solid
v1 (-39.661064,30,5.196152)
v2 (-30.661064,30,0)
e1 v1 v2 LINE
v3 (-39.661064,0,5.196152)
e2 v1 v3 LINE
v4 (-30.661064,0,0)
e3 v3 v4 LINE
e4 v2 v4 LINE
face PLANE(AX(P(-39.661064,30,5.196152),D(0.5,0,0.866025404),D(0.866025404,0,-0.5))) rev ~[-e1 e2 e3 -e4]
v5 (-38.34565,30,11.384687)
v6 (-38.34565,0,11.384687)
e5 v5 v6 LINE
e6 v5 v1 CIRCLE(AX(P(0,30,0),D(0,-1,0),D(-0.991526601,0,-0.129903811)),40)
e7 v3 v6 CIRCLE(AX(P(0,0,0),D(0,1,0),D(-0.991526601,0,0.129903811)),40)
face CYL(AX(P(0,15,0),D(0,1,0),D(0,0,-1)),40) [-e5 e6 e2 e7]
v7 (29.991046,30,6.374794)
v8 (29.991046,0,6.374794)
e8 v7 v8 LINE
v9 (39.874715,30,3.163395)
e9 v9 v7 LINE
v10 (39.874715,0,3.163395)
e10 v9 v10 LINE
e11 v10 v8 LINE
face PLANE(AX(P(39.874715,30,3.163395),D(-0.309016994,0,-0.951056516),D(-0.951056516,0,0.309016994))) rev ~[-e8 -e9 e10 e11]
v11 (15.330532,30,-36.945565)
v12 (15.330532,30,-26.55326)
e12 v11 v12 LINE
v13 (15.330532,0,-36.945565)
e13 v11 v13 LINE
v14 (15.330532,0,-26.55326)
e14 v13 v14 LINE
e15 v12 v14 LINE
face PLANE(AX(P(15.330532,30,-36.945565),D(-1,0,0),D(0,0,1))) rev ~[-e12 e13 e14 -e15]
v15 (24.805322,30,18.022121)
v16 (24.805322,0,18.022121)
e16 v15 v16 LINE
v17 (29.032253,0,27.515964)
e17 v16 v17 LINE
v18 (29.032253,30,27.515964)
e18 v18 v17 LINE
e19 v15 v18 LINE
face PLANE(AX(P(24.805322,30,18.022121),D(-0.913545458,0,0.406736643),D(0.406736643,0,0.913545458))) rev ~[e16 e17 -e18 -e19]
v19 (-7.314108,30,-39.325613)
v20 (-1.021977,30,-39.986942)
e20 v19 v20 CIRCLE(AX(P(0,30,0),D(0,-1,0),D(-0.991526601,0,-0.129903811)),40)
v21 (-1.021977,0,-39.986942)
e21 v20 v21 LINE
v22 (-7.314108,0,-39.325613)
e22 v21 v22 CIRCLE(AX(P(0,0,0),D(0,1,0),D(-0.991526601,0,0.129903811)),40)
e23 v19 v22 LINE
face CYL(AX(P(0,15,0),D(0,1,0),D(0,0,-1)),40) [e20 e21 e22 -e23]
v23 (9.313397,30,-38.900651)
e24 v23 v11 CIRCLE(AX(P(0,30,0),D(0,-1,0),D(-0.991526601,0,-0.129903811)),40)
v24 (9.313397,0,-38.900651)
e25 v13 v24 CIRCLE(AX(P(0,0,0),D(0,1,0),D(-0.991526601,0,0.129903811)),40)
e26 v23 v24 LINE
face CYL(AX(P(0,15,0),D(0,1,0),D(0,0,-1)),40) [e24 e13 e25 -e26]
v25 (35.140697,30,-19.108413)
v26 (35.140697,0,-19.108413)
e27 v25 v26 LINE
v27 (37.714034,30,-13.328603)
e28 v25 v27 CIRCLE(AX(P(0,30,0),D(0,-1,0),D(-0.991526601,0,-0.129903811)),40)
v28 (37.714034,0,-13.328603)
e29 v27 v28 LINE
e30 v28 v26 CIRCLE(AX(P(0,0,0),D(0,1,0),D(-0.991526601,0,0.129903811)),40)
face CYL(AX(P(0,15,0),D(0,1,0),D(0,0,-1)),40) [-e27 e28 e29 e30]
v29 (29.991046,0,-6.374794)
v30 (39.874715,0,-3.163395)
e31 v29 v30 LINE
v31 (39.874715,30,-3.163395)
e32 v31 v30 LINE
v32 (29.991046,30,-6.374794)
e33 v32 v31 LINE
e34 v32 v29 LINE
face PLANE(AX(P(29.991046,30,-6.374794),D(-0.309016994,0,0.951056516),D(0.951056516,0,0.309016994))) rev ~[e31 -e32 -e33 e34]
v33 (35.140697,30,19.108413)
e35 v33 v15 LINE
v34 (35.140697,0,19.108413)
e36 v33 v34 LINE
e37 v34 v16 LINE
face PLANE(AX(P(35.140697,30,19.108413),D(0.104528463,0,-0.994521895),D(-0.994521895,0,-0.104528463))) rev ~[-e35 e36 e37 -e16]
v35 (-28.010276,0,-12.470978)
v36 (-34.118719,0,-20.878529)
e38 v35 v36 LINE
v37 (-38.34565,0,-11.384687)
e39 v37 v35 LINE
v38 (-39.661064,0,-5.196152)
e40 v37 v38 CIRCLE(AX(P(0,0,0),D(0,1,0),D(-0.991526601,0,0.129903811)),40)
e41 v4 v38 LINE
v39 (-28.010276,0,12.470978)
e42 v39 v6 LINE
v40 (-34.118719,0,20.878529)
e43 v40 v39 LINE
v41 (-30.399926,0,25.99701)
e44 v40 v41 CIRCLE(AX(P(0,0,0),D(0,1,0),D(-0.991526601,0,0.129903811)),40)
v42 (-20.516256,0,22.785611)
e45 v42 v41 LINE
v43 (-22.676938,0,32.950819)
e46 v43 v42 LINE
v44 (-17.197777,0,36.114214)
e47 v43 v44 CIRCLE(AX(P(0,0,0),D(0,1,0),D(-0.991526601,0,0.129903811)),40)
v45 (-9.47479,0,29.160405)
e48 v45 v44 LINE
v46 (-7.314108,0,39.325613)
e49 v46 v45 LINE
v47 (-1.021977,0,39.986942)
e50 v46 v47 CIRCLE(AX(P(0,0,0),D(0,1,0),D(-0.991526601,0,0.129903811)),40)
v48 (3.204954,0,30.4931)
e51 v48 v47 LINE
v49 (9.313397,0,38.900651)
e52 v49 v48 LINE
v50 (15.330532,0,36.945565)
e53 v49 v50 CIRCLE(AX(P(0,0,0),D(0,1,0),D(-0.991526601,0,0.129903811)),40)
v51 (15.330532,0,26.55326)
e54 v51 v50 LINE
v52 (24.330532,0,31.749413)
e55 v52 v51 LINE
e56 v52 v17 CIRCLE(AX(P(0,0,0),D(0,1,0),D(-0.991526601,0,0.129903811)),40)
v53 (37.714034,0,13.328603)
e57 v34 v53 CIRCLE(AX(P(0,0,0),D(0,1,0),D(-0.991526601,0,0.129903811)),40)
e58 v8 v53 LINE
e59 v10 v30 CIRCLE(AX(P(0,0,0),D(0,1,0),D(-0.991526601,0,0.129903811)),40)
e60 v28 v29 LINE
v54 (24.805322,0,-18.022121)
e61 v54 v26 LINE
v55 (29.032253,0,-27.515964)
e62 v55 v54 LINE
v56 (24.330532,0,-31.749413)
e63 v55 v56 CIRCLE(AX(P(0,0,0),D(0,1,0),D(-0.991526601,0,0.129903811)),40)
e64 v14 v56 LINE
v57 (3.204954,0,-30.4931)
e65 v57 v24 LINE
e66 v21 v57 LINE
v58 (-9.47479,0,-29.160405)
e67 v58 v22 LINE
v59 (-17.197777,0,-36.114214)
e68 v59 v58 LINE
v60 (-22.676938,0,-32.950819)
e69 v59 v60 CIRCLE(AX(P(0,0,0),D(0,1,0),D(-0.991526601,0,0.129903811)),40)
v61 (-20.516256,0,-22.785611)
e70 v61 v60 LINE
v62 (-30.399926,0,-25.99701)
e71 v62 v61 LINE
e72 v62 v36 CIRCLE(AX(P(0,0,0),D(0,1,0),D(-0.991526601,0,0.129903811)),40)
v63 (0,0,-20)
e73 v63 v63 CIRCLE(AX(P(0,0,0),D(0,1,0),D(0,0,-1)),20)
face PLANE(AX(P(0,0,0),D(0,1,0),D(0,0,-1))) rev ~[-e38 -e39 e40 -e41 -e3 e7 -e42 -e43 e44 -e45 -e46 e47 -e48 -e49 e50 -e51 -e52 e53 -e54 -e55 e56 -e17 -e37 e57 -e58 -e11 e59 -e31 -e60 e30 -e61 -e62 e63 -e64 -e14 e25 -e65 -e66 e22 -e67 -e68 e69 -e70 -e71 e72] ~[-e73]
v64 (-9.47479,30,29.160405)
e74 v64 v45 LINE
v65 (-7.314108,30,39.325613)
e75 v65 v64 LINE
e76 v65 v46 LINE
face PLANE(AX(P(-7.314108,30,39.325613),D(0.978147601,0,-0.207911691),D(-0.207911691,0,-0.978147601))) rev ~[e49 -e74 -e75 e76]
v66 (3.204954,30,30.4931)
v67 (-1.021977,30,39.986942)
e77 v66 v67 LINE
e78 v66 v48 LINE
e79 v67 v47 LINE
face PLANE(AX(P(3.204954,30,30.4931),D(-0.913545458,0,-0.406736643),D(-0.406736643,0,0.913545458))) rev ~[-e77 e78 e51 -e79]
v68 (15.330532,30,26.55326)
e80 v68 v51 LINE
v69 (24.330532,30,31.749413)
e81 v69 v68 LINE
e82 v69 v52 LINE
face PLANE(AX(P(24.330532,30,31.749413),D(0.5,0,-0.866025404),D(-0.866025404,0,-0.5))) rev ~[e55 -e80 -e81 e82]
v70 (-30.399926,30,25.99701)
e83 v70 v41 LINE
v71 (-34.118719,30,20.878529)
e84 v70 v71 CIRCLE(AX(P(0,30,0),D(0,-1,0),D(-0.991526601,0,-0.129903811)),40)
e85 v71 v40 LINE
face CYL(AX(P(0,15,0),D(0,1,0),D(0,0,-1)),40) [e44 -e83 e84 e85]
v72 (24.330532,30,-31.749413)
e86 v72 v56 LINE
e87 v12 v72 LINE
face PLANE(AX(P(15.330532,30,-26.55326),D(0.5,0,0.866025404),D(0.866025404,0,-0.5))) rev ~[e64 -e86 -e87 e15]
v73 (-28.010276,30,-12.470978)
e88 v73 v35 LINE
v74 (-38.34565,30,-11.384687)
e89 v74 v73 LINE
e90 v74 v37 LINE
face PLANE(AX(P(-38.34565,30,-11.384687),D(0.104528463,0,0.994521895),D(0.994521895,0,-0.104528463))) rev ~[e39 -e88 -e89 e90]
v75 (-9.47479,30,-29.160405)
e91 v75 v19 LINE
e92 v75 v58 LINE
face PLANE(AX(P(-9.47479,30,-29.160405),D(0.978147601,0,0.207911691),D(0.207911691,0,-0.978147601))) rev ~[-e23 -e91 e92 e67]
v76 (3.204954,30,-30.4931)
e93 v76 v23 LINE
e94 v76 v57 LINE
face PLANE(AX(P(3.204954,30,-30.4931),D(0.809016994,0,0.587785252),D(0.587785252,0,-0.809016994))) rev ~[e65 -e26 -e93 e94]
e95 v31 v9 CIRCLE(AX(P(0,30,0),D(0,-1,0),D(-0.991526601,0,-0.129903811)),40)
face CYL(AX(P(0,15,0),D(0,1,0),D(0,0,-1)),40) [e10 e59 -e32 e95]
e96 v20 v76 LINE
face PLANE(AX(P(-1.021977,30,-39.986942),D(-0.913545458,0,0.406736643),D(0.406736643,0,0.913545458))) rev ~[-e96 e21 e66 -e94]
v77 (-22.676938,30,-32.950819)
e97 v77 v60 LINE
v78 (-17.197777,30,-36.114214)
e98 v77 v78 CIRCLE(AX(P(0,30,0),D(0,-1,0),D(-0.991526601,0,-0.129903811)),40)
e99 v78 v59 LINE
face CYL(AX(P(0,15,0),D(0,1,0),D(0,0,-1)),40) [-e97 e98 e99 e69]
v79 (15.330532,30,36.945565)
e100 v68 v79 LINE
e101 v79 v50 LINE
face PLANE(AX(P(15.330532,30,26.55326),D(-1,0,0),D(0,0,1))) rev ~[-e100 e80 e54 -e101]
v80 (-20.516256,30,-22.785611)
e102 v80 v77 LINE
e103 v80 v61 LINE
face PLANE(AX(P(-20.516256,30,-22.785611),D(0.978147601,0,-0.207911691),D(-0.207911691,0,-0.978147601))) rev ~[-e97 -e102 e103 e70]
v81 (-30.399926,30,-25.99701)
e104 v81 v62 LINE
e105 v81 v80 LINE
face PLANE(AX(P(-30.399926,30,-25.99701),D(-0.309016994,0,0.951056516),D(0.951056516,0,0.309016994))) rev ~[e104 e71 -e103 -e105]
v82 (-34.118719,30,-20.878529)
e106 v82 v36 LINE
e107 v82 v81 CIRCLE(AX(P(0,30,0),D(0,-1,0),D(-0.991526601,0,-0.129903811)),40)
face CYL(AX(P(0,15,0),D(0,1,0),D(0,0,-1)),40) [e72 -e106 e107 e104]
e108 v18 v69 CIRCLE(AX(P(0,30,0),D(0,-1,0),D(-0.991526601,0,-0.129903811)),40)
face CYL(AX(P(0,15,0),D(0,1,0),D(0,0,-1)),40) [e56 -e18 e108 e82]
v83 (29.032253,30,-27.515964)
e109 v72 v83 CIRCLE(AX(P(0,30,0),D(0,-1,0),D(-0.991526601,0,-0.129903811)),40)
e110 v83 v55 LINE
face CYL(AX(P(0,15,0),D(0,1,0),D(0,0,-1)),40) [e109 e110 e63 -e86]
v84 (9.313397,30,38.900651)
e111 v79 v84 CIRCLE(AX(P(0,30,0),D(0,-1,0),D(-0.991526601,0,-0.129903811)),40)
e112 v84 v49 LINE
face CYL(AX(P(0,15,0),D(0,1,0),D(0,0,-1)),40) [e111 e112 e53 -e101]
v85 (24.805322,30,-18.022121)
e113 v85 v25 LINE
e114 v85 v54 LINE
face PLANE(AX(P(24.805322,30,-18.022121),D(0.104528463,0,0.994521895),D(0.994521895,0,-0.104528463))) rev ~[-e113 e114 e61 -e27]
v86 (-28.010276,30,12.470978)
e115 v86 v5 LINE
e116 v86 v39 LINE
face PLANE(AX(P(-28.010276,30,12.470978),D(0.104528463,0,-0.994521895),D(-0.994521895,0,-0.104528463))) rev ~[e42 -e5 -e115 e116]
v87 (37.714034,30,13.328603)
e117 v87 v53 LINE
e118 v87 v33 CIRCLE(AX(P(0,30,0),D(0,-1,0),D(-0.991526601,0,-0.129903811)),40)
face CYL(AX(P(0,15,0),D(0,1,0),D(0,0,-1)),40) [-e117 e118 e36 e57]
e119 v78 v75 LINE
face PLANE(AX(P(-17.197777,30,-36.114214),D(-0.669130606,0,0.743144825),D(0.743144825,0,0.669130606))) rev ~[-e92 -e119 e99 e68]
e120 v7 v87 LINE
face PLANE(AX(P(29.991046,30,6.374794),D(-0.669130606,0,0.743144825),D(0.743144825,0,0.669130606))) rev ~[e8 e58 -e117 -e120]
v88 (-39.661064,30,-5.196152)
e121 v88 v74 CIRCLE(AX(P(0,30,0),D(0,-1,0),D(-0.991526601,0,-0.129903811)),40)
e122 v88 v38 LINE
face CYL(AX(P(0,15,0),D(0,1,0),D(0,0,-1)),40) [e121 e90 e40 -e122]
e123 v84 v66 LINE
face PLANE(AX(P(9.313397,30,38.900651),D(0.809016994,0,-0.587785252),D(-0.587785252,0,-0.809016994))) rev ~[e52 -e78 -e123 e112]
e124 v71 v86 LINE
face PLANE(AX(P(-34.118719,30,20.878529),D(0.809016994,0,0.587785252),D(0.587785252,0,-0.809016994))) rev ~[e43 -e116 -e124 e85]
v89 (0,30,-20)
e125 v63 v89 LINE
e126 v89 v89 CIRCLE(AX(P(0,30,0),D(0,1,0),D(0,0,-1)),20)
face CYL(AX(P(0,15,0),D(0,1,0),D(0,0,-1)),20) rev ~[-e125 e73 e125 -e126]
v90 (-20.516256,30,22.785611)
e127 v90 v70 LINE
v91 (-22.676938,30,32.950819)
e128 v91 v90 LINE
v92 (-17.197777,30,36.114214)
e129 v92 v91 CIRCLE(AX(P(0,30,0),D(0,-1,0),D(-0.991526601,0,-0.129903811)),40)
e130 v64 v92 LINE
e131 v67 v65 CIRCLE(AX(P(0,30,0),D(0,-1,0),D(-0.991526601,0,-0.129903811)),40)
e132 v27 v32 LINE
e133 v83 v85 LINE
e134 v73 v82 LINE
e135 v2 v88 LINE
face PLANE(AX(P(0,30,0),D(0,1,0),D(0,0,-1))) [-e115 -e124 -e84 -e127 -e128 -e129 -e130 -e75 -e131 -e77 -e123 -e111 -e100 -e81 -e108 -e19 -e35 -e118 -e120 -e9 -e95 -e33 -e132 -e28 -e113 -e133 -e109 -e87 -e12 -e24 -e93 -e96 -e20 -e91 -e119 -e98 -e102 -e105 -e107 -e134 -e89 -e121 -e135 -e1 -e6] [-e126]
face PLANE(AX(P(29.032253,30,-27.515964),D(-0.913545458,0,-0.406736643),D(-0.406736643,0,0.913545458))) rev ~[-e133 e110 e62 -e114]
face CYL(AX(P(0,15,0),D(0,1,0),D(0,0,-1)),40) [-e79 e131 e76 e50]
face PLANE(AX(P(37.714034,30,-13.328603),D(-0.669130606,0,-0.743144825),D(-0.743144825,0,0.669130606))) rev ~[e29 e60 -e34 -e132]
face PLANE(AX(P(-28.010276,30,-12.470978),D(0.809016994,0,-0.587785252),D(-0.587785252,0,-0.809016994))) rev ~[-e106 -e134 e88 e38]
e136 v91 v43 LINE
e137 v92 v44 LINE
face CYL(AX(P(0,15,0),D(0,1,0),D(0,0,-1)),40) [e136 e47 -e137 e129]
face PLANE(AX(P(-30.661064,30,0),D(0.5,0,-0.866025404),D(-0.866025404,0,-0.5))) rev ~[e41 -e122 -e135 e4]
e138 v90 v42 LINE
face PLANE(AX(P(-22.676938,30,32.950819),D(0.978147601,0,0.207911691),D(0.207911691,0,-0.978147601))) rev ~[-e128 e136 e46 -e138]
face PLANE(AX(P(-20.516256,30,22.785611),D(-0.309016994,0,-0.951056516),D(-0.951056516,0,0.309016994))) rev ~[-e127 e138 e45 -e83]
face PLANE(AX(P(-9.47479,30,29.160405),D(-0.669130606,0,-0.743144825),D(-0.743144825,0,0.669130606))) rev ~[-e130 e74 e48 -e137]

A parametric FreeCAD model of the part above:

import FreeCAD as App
import Part
import Sketcher

V = App.Vector
Q = App.Units.Quantity


def add_polygon(sketch, points):
    """Adds a closed chain of lines whose ends are joined by coincident constraints."""
    first, n = sketch.GeometryCount, len(points)
    for a, b in zip(points, points[1:] + points[:1]):
        sketch.addGeometry(Part.LineSegment(App.Vector(*a, 0), App.Vector(*b, 0)), False)
    for i in range(n):
        sketch.addConstraint(Sketcher.Constraint("Coincident", first + i, 2, first + (i + 1) % n, 1))

doc = App.newDocument("Part")
body = doc.addObject("PartDesign::Body", "Body")

sketch1 = body.newObject("Sketcher::SketchObject", "Sketch")
sketch1.AttachmentSupport = (doc.getObject("XY_Plane"), [""])
sketch1.MapMode = "FlatFace"
add_polygon(sketch1, [(-40, 30), (-40, 0), (-20, 0), (-20, 30)])
sketch1.addConstraint([
    Sketcher.Constraint("Vertical", 0),
    Sketcher.Constraint("Horizontal", 1),
    Sketcher.Constraint("Vertical", 2),
    Sketcher.Constraint("Horizontal", 3),
    Sketcher.Constraint("PointOnObject", 0, 2, -1),
    Sketcher.Constraint("DistanceX", 1, 1, 1, 2, Q("20 mm")),
    Sketcher.Constraint("DistanceY", 0, 2, 0, 1, Q("30 mm")),
    Sketcher.Constraint("DistanceX", 0, 2, -1, 1, Q("40 mm")),
])
revolution = body.newObject("PartDesign::Revolution", "Revolution")
revolution.Profile = sketch1
revolution.ReferenceAxis = (sketch1, ["V_Axis"])
revolution.Angle = 360

sketch2 = body.newObject("Sketcher::SketchObject", "Sketch001")
sketch2.AttachmentSupport = (doc.getObject("XZ_Plane"), [""])
sketch2.MapMode = "FlatFace"
sketch2.AttachmentOffset = App.Placement(V(0, 0, -30), App.Rotation())
add_polygon(sketch2, [(-31, 0), (-40, -5), (-49, 0), (-40, 5)])
sketch2.addConstraint([
    Sketcher.Constraint("Symmetric", 0, 2, 2, 2, -1),
    Sketcher.Constraint("PointOnObject", 1, 2, -1),
    Sketcher.Constraint("PointOnObject", 3, 2, -1),
    Sketcher.Constraint("Parallel", 0, 2),
    Sketcher.Constraint("Angle", 0, Q("-150 deg")),
    Sketcher.Constraint("DistanceX", 1, 2, 0, 2, Q("9 mm")),
    Sketcher.Constraint("DistanceX", 0, 2, -1, 1, Q("39.661064 mm")),
])
pocket1 = body.newObject("PartDesign::Pocket", "Pocket")
pocket1.Profile = sketch2
pocket1.Type = "ThroughAll"
pocket1.Reversed = True
doc.recompute()

polarpattern = body.newObject("PartDesign::PolarPattern", "PolarPattern")
polarpattern.Originals = [pocket1]
polarpattern.Axis = (doc.getObject("Y_Axis"), [""])
polarpattern.Angle = 360
polarpattern.Occurrences = 15
body.Tip = polarpattern

doc.recompute()
